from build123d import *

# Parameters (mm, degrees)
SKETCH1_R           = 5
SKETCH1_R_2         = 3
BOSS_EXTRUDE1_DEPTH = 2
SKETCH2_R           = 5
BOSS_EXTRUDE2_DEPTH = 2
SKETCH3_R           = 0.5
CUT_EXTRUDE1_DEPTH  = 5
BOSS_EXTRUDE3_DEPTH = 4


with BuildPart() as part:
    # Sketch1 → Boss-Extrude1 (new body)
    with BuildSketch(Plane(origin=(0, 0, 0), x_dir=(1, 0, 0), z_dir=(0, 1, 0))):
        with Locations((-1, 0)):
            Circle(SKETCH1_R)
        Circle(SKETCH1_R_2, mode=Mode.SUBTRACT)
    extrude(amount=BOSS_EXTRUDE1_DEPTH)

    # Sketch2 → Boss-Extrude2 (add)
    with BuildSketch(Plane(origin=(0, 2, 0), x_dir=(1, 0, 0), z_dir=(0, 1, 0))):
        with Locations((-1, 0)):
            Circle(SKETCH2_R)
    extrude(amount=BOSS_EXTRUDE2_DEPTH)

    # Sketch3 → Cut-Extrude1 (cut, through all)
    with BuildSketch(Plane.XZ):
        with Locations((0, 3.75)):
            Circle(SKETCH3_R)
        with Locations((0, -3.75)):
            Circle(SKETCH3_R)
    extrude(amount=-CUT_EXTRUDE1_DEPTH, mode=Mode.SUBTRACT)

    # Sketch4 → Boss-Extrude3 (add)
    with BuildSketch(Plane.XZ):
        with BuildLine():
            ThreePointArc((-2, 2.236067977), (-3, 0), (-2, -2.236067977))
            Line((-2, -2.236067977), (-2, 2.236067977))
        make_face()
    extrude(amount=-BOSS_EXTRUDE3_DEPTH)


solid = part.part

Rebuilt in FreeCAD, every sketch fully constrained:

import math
import FreeCAD as App
import Part
import Sketcher
from FreeCAD import Vector

doc = App.newDocument("Part")
params = doc.addObject("Spreadsheet::Sheet", "Params")
for row, (alias, value) in enumerate([
    ("sketch1_diameter", "10 mm"),
    ("sketch1_diameter2", "6 mm"),
    ("pad1_length", "2 mm"),
    ("sketch2_diameter", "10 mm"),
    ("pad2_length", "2 mm"),
    ("sketch3_diameter", "1 mm"),
    ("sketch4_radius", "3 mm"),
    ("pad3_length", "4 mm"),
], start=1):
    params.set(f"A{row}", alias)
    params.set(f"B{row}", "=" + value)
    params.setAlias(f"B{row}", alias)

body = doc.addObject("PartDesign::Body", "Body")

sketch1 = body.newObject("Sketcher::SketchObject", "Sketch")
sketch1.AttachmentSupport = (doc.getObject("XZ_Plane"), [""])
sketch1.MapMode = "FlatFace"
sketch1.addGeometry([
    Part.Circle(Vector(-1, 0, 0), Vector(0, 0, 1), 5),
    Part.Circle(Vector(0, 0, 0), Vector(0, 0, 1), 3),
], False)
sketch1.addConstraint([
    Sketcher.Constraint("Coincident", 1, 3, -1, 1),
    Sketcher.Constraint("PointOnObject", 0, 3, -1),
    Sketcher.Constraint("Diameter", 0, 10.0),
    Sketcher.Constraint("Diameter", 1, 6.0),
    Sketcher.Constraint("DistanceX", 0, 3, -1, 1, 1.0),
])
sketch1.setExpression("Constraints[2]", "Params.sketch1_diameter")
sketch1.setExpression("Constraints[3]", "Params.sketch1_diameter2")
pad1 = body.newObject("PartDesign::Pad", "Pad")
pad1.Profile = sketch1
pad1.setExpression("Length", "Params.pad1_length")
pad1.Reversed = True

sketch2 = body.newObject("Sketcher::SketchObject", "Sketch001")
sketch2.AttachmentSupport = (doc.getObject("XZ_Plane"), [""])
sketch2.MapMode = "FlatFace"
sketch2.AttachmentOffset = App.Placement(Vector(0, 0, -2), App.Rotation())
sketch2.addGeometry(Part.Circle(Vector(-1, 0, 0), Vector(0, 0, 1), 5), False)
sketch2.addConstraint([
    Sketcher.Constraint("PointOnObject", 0, 3, -1),
    Sketcher.Constraint("Diameter", 0, 10.0),
    Sketcher.Constraint("DistanceX", 0, 3, -1, 1, 1.0),
])
sketch2.setExpression("Constraints[1]", "Params.sketch2_diameter")
pad2 = body.newObject("PartDesign::Pad", "Pad001")
pad2.Profile = sketch2
pad2.setExpression("Length", "Params.pad2_length")
pad2.Reversed = True

sketch3 = body.newObject("Sketcher::SketchObject", "Sketch002")
sketch3.AttachmentSupport = (doc.getObject("XZ_Plane"), [""])
sketch3.MapMode = "FlatFace"
sketch3.addGeometry([
    Part.Circle(Vector(0, 3.75, 0), Vector(0, 0, 1), 0.5),
    Part.Circle(Vector(0, -3.75, 0), Vector(0, 0, 1), 0.5),
], False)
sketch3.addConstraint([
    Sketcher.Constraint("Equal", 0, 1),
    Sketcher.Constraint("Symmetric", 0, 3, 1, 3, -1, 1),
    Sketcher.Constraint("PointOnObject", 0, 3, -2),
    Sketcher.Constraint("Diameter", 0, 1.0),
    Sketcher.Constraint("DistanceY", 1, 3, 0, 3, 7.5),
])
sketch3.setExpression("Constraints[3]", "Params.sketch3_diameter")
pocket1 = body.newObject("PartDesign::Pocket", "Pocket")
pocket1.Profile = sketch3
pocket1.Type = "ThroughAll"

sketch4 = body.newObject("Sketcher::SketchObject", "Sketch003")
sketch4.AttachmentSupport = (doc.getObject("XZ_Plane"), [""])
sketch4.MapMode = "FlatFace"
sketch4.addGeometry([
    Part.ArcOfCircle(Part.Circle(Vector(0, 0, 0), Vector(0, 0, 1), 3), math.radians(131.810315), math.radians(228.189685)),
    Part.LineSegment(Vector(-2, -2.236068, 0), Vector(-2, 2.236068, 0)),
], False)
sketch4.addConstraint([
    Sketcher.Constraint("Coincident", 0, 1, 1, 2),
    Sketcher.Constraint("Coincident", 1, 1, 0, 2),
    Sketcher.Constraint("Vertical", 1),
    Sketcher.Constraint("Coincident", 0, 3, -1, 1),
    Sketcher.Constraint("Radius", 0, 3.0),
    Sketcher.Constraint("DistanceX", 0, 1, -1, 1, 2.0),
])
sketch4.setExpression("Constraints[4]", "Params.sketch4_radius")
pad3 = body.newObject("PartDesign::Pad", "Pad002")
pad3.Profile = sketch4
pad3.setExpression("Length", "Params.pad3_length")
pad3.Reversed = True

doc.recompute()
